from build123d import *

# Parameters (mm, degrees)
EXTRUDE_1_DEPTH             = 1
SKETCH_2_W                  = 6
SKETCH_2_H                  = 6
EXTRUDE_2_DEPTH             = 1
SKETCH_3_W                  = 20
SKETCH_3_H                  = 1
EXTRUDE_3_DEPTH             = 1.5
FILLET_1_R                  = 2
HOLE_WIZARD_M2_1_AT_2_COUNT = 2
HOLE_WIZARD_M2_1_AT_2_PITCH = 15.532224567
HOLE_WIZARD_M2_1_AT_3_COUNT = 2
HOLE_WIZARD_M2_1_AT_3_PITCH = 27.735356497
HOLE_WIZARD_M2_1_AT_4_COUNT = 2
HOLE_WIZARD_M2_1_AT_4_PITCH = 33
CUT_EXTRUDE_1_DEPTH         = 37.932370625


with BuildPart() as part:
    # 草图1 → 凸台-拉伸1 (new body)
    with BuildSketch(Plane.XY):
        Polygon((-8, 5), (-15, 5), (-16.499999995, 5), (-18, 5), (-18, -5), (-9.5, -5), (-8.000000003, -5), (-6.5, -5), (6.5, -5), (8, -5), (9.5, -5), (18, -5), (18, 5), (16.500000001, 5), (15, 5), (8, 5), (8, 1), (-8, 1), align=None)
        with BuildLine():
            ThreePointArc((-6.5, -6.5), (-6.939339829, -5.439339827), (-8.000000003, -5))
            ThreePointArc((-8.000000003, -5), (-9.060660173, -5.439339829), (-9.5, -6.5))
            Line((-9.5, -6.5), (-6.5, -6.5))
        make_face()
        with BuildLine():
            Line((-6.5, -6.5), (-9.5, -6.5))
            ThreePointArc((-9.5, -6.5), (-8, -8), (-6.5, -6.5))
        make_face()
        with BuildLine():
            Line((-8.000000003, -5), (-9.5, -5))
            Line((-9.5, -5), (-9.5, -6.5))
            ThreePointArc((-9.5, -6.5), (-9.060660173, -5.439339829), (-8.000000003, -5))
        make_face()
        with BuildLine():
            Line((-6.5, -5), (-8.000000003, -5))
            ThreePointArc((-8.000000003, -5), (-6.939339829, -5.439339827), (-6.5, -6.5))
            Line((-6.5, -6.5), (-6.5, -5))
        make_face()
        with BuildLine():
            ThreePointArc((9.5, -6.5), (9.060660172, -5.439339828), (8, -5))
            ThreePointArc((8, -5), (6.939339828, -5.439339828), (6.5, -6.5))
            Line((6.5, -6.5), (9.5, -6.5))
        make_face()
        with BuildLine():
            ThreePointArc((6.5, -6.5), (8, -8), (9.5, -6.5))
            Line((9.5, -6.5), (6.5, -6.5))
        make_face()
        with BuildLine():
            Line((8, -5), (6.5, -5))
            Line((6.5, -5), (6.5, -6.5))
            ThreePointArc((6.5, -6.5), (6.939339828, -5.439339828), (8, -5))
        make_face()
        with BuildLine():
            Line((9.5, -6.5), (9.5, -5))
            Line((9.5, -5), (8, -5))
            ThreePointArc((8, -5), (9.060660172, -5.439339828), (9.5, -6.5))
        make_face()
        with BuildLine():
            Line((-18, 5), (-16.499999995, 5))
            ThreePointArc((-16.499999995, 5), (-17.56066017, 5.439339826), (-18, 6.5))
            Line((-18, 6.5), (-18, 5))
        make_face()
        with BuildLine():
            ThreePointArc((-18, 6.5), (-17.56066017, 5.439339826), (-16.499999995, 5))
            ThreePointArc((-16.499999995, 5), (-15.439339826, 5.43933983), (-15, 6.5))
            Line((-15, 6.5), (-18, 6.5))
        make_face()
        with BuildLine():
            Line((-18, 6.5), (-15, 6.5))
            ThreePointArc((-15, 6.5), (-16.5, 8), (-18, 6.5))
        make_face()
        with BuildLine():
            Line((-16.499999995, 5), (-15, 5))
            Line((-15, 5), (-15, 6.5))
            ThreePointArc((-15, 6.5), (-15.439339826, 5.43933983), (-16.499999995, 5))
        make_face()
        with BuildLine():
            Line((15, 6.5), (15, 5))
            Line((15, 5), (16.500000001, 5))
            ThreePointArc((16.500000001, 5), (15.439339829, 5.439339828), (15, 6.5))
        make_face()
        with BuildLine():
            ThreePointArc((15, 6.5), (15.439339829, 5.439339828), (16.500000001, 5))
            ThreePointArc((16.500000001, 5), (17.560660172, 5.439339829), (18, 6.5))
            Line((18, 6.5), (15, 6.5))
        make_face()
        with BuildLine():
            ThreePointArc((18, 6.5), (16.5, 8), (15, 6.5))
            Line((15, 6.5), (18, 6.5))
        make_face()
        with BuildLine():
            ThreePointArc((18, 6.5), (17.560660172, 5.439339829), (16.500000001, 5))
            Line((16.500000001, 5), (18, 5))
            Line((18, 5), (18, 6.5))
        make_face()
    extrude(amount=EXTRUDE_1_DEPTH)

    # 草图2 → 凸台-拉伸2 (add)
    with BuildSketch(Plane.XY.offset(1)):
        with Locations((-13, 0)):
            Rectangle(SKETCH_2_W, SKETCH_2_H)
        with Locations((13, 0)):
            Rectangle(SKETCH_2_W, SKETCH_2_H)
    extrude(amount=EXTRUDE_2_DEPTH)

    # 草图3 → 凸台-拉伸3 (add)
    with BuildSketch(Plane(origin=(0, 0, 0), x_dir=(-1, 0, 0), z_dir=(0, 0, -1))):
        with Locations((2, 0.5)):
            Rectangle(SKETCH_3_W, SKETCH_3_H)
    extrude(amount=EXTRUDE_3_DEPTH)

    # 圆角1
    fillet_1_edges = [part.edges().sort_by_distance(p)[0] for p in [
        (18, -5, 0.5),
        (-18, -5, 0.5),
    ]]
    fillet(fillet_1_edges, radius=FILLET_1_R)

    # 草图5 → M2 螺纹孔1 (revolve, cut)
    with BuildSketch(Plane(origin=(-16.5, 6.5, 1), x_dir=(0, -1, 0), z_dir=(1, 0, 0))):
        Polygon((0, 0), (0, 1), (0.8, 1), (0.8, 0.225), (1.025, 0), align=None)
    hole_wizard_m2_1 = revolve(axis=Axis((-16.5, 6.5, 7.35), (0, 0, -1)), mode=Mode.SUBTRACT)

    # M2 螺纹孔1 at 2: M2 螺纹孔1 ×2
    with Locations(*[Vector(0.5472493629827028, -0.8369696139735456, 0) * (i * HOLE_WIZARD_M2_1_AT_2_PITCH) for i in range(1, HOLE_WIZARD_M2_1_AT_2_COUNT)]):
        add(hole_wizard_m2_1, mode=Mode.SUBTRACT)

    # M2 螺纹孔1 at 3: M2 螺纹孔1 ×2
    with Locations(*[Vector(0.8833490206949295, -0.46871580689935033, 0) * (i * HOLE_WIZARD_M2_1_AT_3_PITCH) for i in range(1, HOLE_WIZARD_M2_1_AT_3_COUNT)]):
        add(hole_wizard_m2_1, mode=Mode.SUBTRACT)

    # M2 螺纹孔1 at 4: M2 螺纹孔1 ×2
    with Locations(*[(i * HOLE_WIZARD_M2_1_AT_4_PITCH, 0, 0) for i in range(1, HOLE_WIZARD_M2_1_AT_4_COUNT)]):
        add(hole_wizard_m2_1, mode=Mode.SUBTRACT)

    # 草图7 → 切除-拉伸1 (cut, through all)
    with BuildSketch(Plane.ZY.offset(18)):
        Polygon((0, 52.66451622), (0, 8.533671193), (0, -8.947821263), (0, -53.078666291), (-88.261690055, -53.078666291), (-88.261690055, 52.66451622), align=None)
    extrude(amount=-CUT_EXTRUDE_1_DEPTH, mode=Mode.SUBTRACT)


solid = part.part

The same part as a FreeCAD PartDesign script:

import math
import FreeCAD as App
import Part
import Sketcher
from FreeCAD import Vector
Q = App.Units.Quantity


def edges_at(feature, points):
    """Names of the edges that pass closest to the given points."""
    edges = feature.Shape.Edges
    near = lambda p: min(range(len(edges)), key=lambda i: edges[i].distToShape(Part.Vertex(*p))[0])
    return sorted({f"Edge{near(p) + 1}" for p in points})

doc = App.newDocument("Part")
params = doc.addObject("Spreadsheet::Sheet", "Params")
for row, (alias, value) in enumerate([
    ("sketch1_radius", "1.5 mm"),
    ("sketch1_width", "7 mm"),
    ("sketch1_width2", "16 mm"),
    ("sketch1_height", "4 mm"),
    ("sketch1_height2", "1.5 mm"),
    ("pad1_length", "1 mm"),
    ("sketch2_width", "6 mm"),
    ("pad2_length", "1 mm"),
    ("sketch3_width", "20 mm"),
    ("sketch3_height", "1 mm"),
    ("pad3_length", "1.5 mm"),
    ("fillet_radius", "2 mm"),
    ("sketch4_height", "1 mm"),
    ("sketch4_width", "0.8 mm"),
    ("groove_angle", "360 deg"),
    ("linearpattern_pitch", "15.532225 mm"),
    ("linearpattern2_pitch", "27.735356 mm"),
    ("linearpattern3_pitch", "33 mm"),
], start=1):
    params.set(f"A{row}", alias)
    params.set(f"B{row}", "=" + value)
    params.setAlias(f"B{row}", alias)

body = doc.addObject("PartDesign::Body", "Body")

# Sketch on XY plane
sketch1 = body.newObject("Sketcher::SketchObject", "Sketch")
sketch1.AttachmentSupport = (doc.getObject("XY_Plane"), [""])
sketch1.MapMode = "FlatFace"
sketch1.addGeometry(Part.LineSegment(Vector(15, 5, 0), Vector(8, 5, 0)), False)
sketch1.addGeometry(Part.LineSegment(Vector(8, 5, 0), Vector(8, 1, 0)), False)
sketch1.addGeometry(Part.LineSegment(Vector(8, 1, 0), Vector(-8, 1, 0)), False)
sketch1.addGeometry(Part.LineSegment(Vector(-8, 1, 0), Vector(-8, 5, 0)), False)
sketch1.addGeometry(Part.LineSegment(Vector(-8, 5, 0), Vector(-15, 5, 0)), False)
sketch1.addGeometry(Part.LineSegment(Vector(-15, 5, 0), Vector(-15, 6.5, 0)), False)
sketch1.addGeometry(Part.ArcOfCircle(Part.Circle(Vector(-16.5, 6.5, 0), Vector(0, 0, 1), 1.5), math.radians(0), math.radians(180)), False)
sketch1.addGeometry(Part.LineSegment(Vector(-18, 6.5, 0), Vector(-18, -5, 0)), False)
sketch1.addGeometry(Part.LineSegment(Vector(-18, -5, 0), Vector(-9.5, -5, 0)), False)
sketch1.addGeometry(Part.LineSegment(Vector(-9.5, -5, 0), Vector(-9.5, -6.5, 0)), False)
sketch1.addGeometry(Part.ArcOfCircle(Part.Circle(Vector(-8, -6.5, 0), Vector(0, 0, 1), 1.5), math.radians(180), math.radians(360)), False)
sketch1.addGeometry(Part.LineSegment(Vector(-6.5, -6.5, 0), Vector(-6.5, -5, 0)), False)
sketch1.addGeometry(Part.LineSegment(Vector(-6.5, -5, 0), Vector(6.5, -5, 0)), False)
sketch1.addGeometry(Part.LineSegment(Vector(6.5, -5, 0), Vector(6.5, -6.5, 0)), False)
sketch1.addGeometry(Part.ArcOfCircle(Part.Circle(Vector(8, -6.5, 0), Vector(0, 0, 1), 1.5), math.radians(180), math.radians(360)), False)
sketch1.addGeometry(Part.LineSegment(Vector(9.5, -6.5, 0), Vector(9.5, -5, 0)), False)
sketch1.addGeometry(Part.LineSegment(Vector(9.5, -5, 0), Vector(18, -5, 0)), False)
sketch1.addGeometry(Part.LineSegment(Vector(18, -5, 0), Vector(18, 6.5, 0)), False)
sketch1.addGeometry(Part.ArcOfCircle(Part.Circle(Vector(16.5, 6.5, 0), Vector(0, 0, 1), 1.5), math.radians(0), math.radians(180)), False)
sketch1.addGeometry(Part.LineSegment(Vector(15, 6.5, 0), Vector(15, 5, 0)), False)
sketch1.addConstraint(Sketcher.Constraint("Coincident", 0, 2, 1, 1))
sketch1.addConstraint(Sketcher.Constraint("Coincident", 1, 2, 2, 1))
sketch1.addConstraint(Sketcher.Constraint("Coincident", 2, 2, 3, 1))
sketch1.addConstraint(Sketcher.Constraint("Coincident", 3, 2, 4, 1))
sketch1.addConstraint(Sketcher.Constraint("Coincident", 4, 2, 5, 1))
sketch1.addConstraint(Sketcher.Constraint("Tangent", 5, 2, 6, 1))
sketch1.addConstraint(Sketcher.Constraint("Tangent", 6, 2, 7, 1))
sketch1.addConstraint(Sketcher.Constraint("Coincident", 7, 2, 8, 1))
sketch1.addConstraint(Sketcher.Constraint("Coincident", 8, 2, 9, 1))
sketch1.addConstraint(Sketcher.Constraint("Tangent", 9, 2, 10, 1))
sketch1.addConstraint(Sketcher.Constraint("Tangent", 10, 2, 11, 1))
sketch1.addConstraint(Sketcher.Constraint("Coincident", 11, 2, 12, 1))
sketch1.addConstraint(Sketcher.Constraint("Coincident", 12, 2, 13, 1))
sketch1.addConstraint(Sketcher.Constraint("Tangent", 13, 2, 14, 1))
sketch1.addConstraint(Sketcher.Constraint("Tangent", 14, 2, 15, 1))
sketch1.addConstraint(Sketcher.Constraint("Coincident", 15, 2, 16, 1))
sketch1.addConstraint(Sketcher.Constraint("Coincident", 16, 2, 17, 1))
sketch1.addConstraint(Sketcher.Constraint("Tangent", 17, 2, 18, 1))
sketch1.addConstraint(Sketcher.Constraint("Tangent", 18, 2, 19, 1))
sketch1.addConstraint(Sketcher.Constraint("Coincident", 19, 2, 0, 1))
sketch1.addConstraint(Sketcher.Constraint("Horizontal", 0))
sketch1.addConstraint(Sketcher.Constraint("Vertical", 1))
sketch1.addConstraint(Sketcher.Constraint("Horizontal", 2))
sketch1.addConstraint(Sketcher.Constraint("Vertical", 3))
sketch1.addConstraint(Sketcher.Constraint("Horizontal", 4))
sketch1.addConstraint(Sketcher.Constraint("Vertical", 5))
sketch1.addConstraint(Sketcher.Constraint("Vertical", 7))
sketch1.addConstraint(Sketcher.Constraint("Horizontal", 8))
sketch1.addConstraint(Sketcher.Constraint("Vertical", 9))
sketch1.addConstraint(Sketcher.Constraint("Vertical", 11))
sketch1.addConstraint(Sketcher.Constraint("Horizontal", 12))
sketch1.addConstraint(Sketcher.Constraint("Vertical", 13))
sketch1.addConstraint(Sketcher.Constraint("Vertical", 15))
sketch1.addConstraint(Sketcher.Constraint("Horizontal", 16))
sketch1.addConstraint(Sketcher.Constraint("Vertical", 17))
sketch1.addConstraint(Sketcher.Constraint("Vertical", 19))
sketch1.addConstraint(Sketcher.Constraint("Equal", 6, 10))
sketch1.addConstraint(Sketcher.Constraint("Equal", 10, 14))
sketch1.addConstraint(Sketcher.Constraint("Equal", 14, 18))
sketch1.addConstraint(Sketcher.Constraint("Symmetric", 10, 3, 14, 3, -2))
sketch1.addConstraint(Sketcher.Constraint("Symmetric", 6, 3, 18, 3, -2))
sketch1.addConstraint(Sketcher.Constraint("Symmetric", 0, 2, 3, 2, -2))
sketch1.addConstraint(Sketcher.Constraint("Horizontal", 8, 2, 11, 2))
sketch1.addConstraint(Sketcher.Constraint("Horizontal", 12, 2, 15, 2))
sketch1.addConstraint(Sketcher.Constraint("Vertical", 14, 3, 0, 2))
sketch1.addConstraint(Sketcher.Constraint("Equal", 5, 9))
sketch1.addConstraint(Sketcher.Constraint("Radius", 6, 1.5))
sketch1.addConstraint(Sketcher.Constraint("DistanceX", 0, 2, 0, 1, 7.0))
sketch1.addConstraint(Sketcher.Constraint("DistanceX", 2, 2, 2, 1, 16.0))
sketch1.addConstraint(Sketcher.Constraint("DistanceY", 1, 2, 1, 1, 4.0))
sketch1.addConstraint(Sketcher.Constraint("DistanceY", 5, 1, 5, 2, 1.5))
sketch1.addConstraint(Sketcher.Constraint("DistanceY", 7, 2, 7, 1, 11.5))
sketch1.addConstraint(Sketcher.Constraint("DistanceY", -1, 1, 0, 2, 5.0))
sketch1.setExpression("Constraints[46]", "Params.sketch1_radius")
sketch1.setExpression("Constraints[47]", "Params.sketch1_width")
sketch1.setExpression("Constraints[48]", "Params.sketch1_width2")
sketch1.setExpression("Constraints[49]", "Params.sketch1_height")
sketch1.setExpression("Constraints[50]", "Params.sketch1_height2")
pad1 = body.newObject("PartDesign::Pad", "Pad")
pad1.Profile = sketch1
pad1.setExpression("Length", "Params.pad1_length")

# Sketch on XY plane
sketch2 = body.newObject("Sketcher::SketchObject", "Sketch001")
sketch2.AttachmentSupport = (doc.getObject("XY_Plane"), [""])
sketch2.MapMode = "FlatFace"
sketch2.AttachmentOffset = App.Placement(Vector(0, 0, 1), App.Rotation())
sketch2.addGeometry(Part.LineSegment(Vector(-16, 3, 0), Vector(-16, -3, 0)), False)
sketch2.addGeometry(Part.LineSegment(Vector(-16, -3, 0), Vector(-10, -3, 0)), False)
sketch2.addGeometry(Part.LineSegment(Vector(-10, -3, 0), Vector(-10, 3, 0)), False)
sketch2.addGeometry(Part.LineSegment(Vector(-10, 3, 0), Vector(-16, 3, 0)), False)
sketch2.addGeometry(Part.LineSegment(Vector(10, 3, 0), Vector(10, -3, 0)), False)
sketch2.addGeometry(Part.LineSegment(Vector(10, -3, 0), Vector(16, -3, 0)), False)
sketch2.addGeometry(Part.LineSegment(Vector(16, -3, 0), Vector(16, 3, 0)), False)
sketch2.addGeometry(Part.LineSegment(Vector(16, 3, 0), Vector(10, 3, 0)), False)
sketch2.addConstraint(Sketcher.Constraint("Coincident", 0, 2, 1, 1))
sketch2.addConstraint(Sketcher.Constraint("Coincident", 1, 2, 2, 1))
sketch2.addConstraint(Sketcher.Constraint("Coincident", 2, 2, 3, 1))
sketch2.addConstraint(Sketcher.Constraint("Coincident", 3, 2, 0, 1))
sketch2.addConstraint(Sketcher.Constraint("Coincident", 4, 2, 5, 1))
sketch2.addConstraint(Sketcher.Constraint("Coincident", 5, 2, 6, 1))
sketch2.addConstraint(Sketcher.Constraint("Coincident", 6, 2, 7, 1))
sketch2.addConstraint(Sketcher.Constraint("Coincident", 7, 2, 4, 1))
sketch2.addConstraint(Sketcher.Constraint("Vertical", 0))
sketch2.addConstraint(Sketcher.Constraint("Horizontal", 1))
sketch2.addConstraint(Sketcher.Constraint("Vertical", 2))
sketch2.addConstraint(Sketcher.Constraint("Horizontal", 3))
sketch2.addConstraint(Sketcher.Constraint("Vertical", 4))
sketch2.addConstraint(Sketcher.Constraint("Horizontal", 5))
sketch2.addConstraint(Sketcher.Constraint("Vertical", 6))
sketch2.addConstraint(Sketcher.Constraint("Horizontal", 7))
sketch2.addConstraint(Sketcher.Constraint("Symmetric", 2, 2, 4, 2, -1, 1))
sketch2.addConstraint(Sketcher.Constraint("Symmetric", 0, 2, 6, 2, -1, 1))
sketch2.addConstraint(Sketcher.Constraint("Horizontal", 1, 2, 4, 2))
sketch2.addConstraint(Sketcher.Constraint("Equal", 7, 0))
sketch2.addConstraint(Sketcher.Constraint("DistanceX", 1, 1, 1, 2, 6.0))
sketch2.addConstraint(Sketcher.Constraint("DistanceX", 0, 2, -1, 1, 16.0))
sketch2.setExpression("Constraints[20]", "Params.sketch2_width")
pad2 = body.newObject("PartDesign::Pad", "Pad001")
pad2.Profile = sketch2
pad2.setExpression("Length", "Params.pad2_length")

# Sketch on XY plane
sketch3 = body.newObject("Sketcher::SketchObject", "Sketch002")
sketch3.AttachmentSupport = (doc.getObject("XY_Plane"), [""])
sketch3.MapMode = "FlatFace"
sketch3.addGeometry(Part.LineSegment(Vector(8, 1, 0), Vector(8, 0, 0)), False)
sketch3.addGeometry(Part.LineSegment(Vector(8, 0, 0), Vector(-12, 0, 0)), False)
sketch3.addGeometry(Part.LineSegment(Vector(-12, 0, 0), Vector(-12, 1, 0)), False)
sketch3.addGeometry(Part.LineSegment(Vector(-12, 1, 0), Vector(8, 1, 0)), False)
sketch3.addConstraint(Sketcher.Constraint("Coincident", 0, 2, 1, 1))
sketch3.addConstraint(Sketcher.Constraint("Coincident", 1, 2, 2, 1))
sketch3.addConstraint(Sketcher.Constraint("Coincident", 2, 2, 3, 1))
sketch3.addConstraint(Sketcher.Constraint("Coincident", 3, 2, 0, 1))
sketch3.addConstraint(Sketcher.Constraint("Vertical", 0))
sketch3.addConstraint(Sketcher.Constraint("Horizontal", 1))
sketch3.addConstraint(Sketcher.Constraint("Vertical", 2))
sketch3.addConstraint(Sketcher.Constraint("Horizontal", 3))
sketch3.addConstraint(Sketcher.Constraint("PointOnObject", 0, 2, -1))
sketch3.addConstraint(Sketcher.Constraint("DistanceX", 1, 2, 1, 1, 20.0))
sketch3.addConstraint(Sketcher.Constraint("DistanceY", 0, 2, 0, 1, 1.0))
sketch3.addConstraint(Sketcher.Constraint("DistanceX", -1, 1, 0, 2, 8.0))
sketch3.setExpression("Constraints[9]", "Params.sketch3_width")
sketch3.setExpression("Constraints[10]", "Params.sketch3_height")
pad3 = body.newObject("PartDesign::Pad", "Pad002")
pad3.Profile = sketch3
pad3.setExpression("Length", "Params.pad3_length")
pad3.Reversed = True
doc.recompute()

fillet = body.newObject("PartDesign::Fillet", "Fillet")
fillet.Base = (pad3, edges_at(pad3, [(18, -5, 0.5), (-18, -5, 0.5)]))
fillet.setExpression("Radius", "Params.fillet_radius")

# Sketch on YZ plane
sketch4 = body.newObject("Sketcher::SketchObject", "Sketch003")
sketch4.AttachmentSupport = (doc.getObject("YZ_Plane"), [""])
sketch4.MapMode = "FlatFace"
sketch4.AttachmentOffset = App.Placement(Vector(0, 0, -16.5), App.Rotation())
sketch4.addGeometry(Part.LineSegment(Vector(6.5, 0, 0), Vector(6.5, 1, 0)), False)
sketch4.addGeometry(Part.LineSegment(Vector(6.5, 1, 0), Vector(5.475, 1, 0)), False)
sketch4.addGeometry(Part.LineSegment(Vector(5.475, 1, 0), Vector(5.7, 0.775, 0)), False)
sketch4.addGeometry(Part.LineSegment(Vector(5.7, 0.775, 0), Vector(5.7, 0, 0)), False)
sketch4.addGeometry(Part.LineSegment(Vector(5.7, 0, 0), Vector(6.5, 0, 0)), False)
sketch4.addGeometry(Part.LineSegment(Vector(6.5, 1, 0), Vector(6.5, 0, 0)), True)  # axis
sketch4.addConstraint(Sketcher.Constraint("Coincident", 0, 2, 1, 1))
sketch4.addConstraint(Sketcher.Constraint("Coincident", 1, 2, 2, 1))
sketch4.addConstraint(Sketcher.Constraint("Coincident", 2, 2, 3, 1))
sketch4.addConstraint(Sketcher.Constraint("Coincident", 3, 2, 4, 1))
sketch4.addConstraint(Sketcher.Constraint("Coincident", 4, 2, 0, 1))
sketch4.addConstraint(Sketcher.Constraint("Vertical", 0))
sketch4.addConstraint(Sketcher.Constraint("Horizontal", 1))
sketch4.addConstraint(Sketcher.Constraint("Vertical", 3))
sketch4.addConstraint(Sketcher.Constraint("Horizontal", 4))
sketch4.addConstraint(Sketcher.Constraint("Vertical", 5))
sketch4.addConstraint(Sketcher.Constraint("Coincident", 5, 1, 0, 2))
sketch4.addConstraint(Sketcher.Constraint("PointOnObject", 3, 2, -1))
sketch4.addConstraint(Sketcher.Constraint("PointOnObject", 5, 2, -1))
sketch4.addConstraint(Sketcher.Constraint("DistanceY", 0, 1, 0, 2, 1.0))
sketch4.addConstraint(Sketcher.Constraint("Angle", 2, Q("-45 deg")))
sketch4.addConstraint(Sketcher.Constraint("DistanceX", 4, 1, 4, 2, 0.8))
sketch4.addConstraint(Sketcher.Constraint("DistanceX", -1, 1, 0, 2, 6.5))
sketch4.addConstraint(Sketcher.Constraint("DistanceX", 1, 2, 1, 1, 1.025))
sketch4.setExpression("Constraints[13]", "Params.sketch4_height")
sketch4.setExpression("Constraints[15]", "Params.sketch4_width")
groove = body.newObject("PartDesign::Groove", "Groove")
groove.Profile = sketch4
groove.ReferenceAxis = (sketch4, ["Axis0"])
groove.setExpression("Angle", "Params.groove_angle")
doc.recompute()

datumline = body.newObject("PartDesign::Line", "DatumLine")
datumline.Placement = App.Placement(Vector(0, 0, 0), App.Rotation(Vector(0, 0, 1), Vector(0.547249363, -0.836969614, 0)))
linearpattern = body.newObject("PartDesign::LinearPattern", "LinearPattern")
linearpattern.Originals = [groove]
linearpattern.Direction = (datumline, [""])
linearpattern.Mode = "offset"
linearpattern.setExpression("Offset", "Params.linearpattern_pitch")
linearpattern.Occurrences = 2
body.Tip = linearpattern
doc.recompute()

datumline2 = body.newObject("PartDesign::Line", "DatumLine001")
datumline2.Placement = App.Placement(Vector(0, 0, 0), App.Rotation(Vector(0, 0, 1), Vector(0.883349021, -0.468715807, 0)))
linearpattern2 = body.newObject("PartDesign::LinearPattern", "LinearPattern001")
linearpattern2.Originals = [groove]
linearpattern2.Direction = (datumline2, [""])
linearpattern2.Mode = "offset"
linearpattern2.setExpression("Offset", "Params.linearpattern2_pitch")
linearpattern2.Occurrences = 2
body.Tip = linearpattern2
doc.recompute()

linearpattern3 = body.newObject("PartDesign::LinearPattern", "LinearPattern002")
linearpattern3.Originals = [groove]
linearpattern3.Direction = (doc.getObject("X_Axis"), [""])
linearpattern3.Mode = "offset"
linearpattern3.setExpression("Offset", "Params.linearpattern3_pitch")
linearpattern3.Occurrences = 2
body.Tip = linearpattern3

# Sketch on YZ plane
sketch5 = body.newObject("Sketcher::SketchObject", "Sketch004")
sketch5.AttachmentSupport = (doc.getObject("YZ_Plane"), [""])
sketch5.MapMode = "FlatFace"
sketch5.AttachmentOffset = App.Placement(Vector(0, 0, -18), App.Rotation())
sketch5.addGeometry(Part.LineSegment(Vector(-53.078666, 0, 0), Vector(52.664516, 0, 0)), False)
sketch5.addGeometry(Part.LineSegment(Vector(52.664516, 0, 0), Vector(52.664516, -88.26169, 0)), False)
sketch5.addGeometry(Part.LineSegment(Vector(52.664516, -88.26169, 0), Vector(-53.078666, -88.26169, 0)), False)
sketch5.addGeometry(Part.LineSegment(Vector(-53.078666, -88.26169, 0), Vector(-53.078666, 0, 0)), False)
sketch5.addConstraint(Sketcher.Constraint("Coincident", 0, 2, 1, 1))
sketch5.addConstraint(Sketcher.Constraint("Coincident", 1, 2, 2, 1))
sketch5.addConstraint(Sketcher.Constraint("Coincident", 2, 2, 3, 1))
sketch5.addConstraint(Sketcher.Constraint("Coincident", 3, 2, 0, 1))
sketch5.addConstraint(Sketcher.Constraint("Horizontal", 0))
sketch5.addConstraint(Sketcher.Constraint("Vertical", 1))
sketch5.addConstraint(Sketcher.Constraint("Horizontal", 2))
sketch5.addConstraint(Sketcher.Constraint("Vertical", 3))
sketch5.addConstraint(Sketcher.Constraint("PointOnObject", 0, 2, -1))
sketch5.addConstraint(Sketcher.Constraint("DistanceY", 1, 2, 1, 1, 88.26169))
sketch5.addConstraint(Sketcher.Constraint("DistanceX", 0, 1, 0, 2, 105.743183))
sketch5.addConstraint(Sketcher.Constraint("DistanceX", -1, 1, 0, 2, 52.664516))
pocket1 = body.newObject("PartDesign::Pocket", "Pocket")
pocket1.Profile = sketch5
pocket1.Type = "ThroughAll"
pocket1.Reversed = True

doc.recompute()
